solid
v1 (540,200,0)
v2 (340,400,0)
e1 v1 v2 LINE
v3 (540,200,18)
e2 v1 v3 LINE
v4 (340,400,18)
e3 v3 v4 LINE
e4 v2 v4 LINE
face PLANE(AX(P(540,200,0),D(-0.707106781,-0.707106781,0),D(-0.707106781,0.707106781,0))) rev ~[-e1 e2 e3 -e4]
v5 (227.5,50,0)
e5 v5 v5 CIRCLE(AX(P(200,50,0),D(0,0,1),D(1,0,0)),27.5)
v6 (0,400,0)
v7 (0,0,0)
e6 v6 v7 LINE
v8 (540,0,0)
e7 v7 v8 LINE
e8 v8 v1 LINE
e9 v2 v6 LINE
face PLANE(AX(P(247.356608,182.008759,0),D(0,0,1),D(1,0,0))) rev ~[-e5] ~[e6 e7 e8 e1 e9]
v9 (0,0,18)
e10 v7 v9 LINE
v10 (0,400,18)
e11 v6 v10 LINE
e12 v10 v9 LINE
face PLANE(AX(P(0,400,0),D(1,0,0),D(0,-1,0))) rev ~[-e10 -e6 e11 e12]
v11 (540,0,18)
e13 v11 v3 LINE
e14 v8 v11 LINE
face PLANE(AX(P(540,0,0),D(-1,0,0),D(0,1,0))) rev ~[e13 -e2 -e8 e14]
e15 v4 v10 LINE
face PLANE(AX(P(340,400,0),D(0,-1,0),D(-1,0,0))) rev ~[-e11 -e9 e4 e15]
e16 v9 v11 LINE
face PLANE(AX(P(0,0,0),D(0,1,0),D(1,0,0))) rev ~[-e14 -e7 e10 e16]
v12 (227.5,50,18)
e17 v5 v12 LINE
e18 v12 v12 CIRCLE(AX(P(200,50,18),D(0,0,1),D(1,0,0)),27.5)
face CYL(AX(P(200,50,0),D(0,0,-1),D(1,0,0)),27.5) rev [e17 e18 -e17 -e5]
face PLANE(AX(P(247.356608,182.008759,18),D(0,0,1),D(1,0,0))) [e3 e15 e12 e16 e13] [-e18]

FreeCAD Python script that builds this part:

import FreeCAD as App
import Part
import Sketcher
from FreeCAD import Vector


def add_polygon(sketch, points):
    """Adds a closed chain of lines whose ends are joined by coincident constraints."""
    first, n = sketch.GeometryCount, len(points)
    for a, b in zip(points, points[1:] + points[:1]):
        sketch.addGeometry(Part.LineSegment(App.Vector(*a, 0), App.Vector(*b, 0)), False)
    for i in range(n):
        sketch.addConstraint(Sketcher.Constraint("Coincident", first + i, 2, first + (i + 1) % n, 1))

doc = App.newDocument("Part")
body = doc.addObject("PartDesign::Body", "Body")

sketch1 = body.newObject("Sketcher::SketchObject", "Sketch")
sketch1.AttachmentSupport = (doc.getObject("XY_Plane"), [""])
sketch1.MapMode = "FlatFace"
add_polygon(sketch1, [(0, 400), (0, 0), (540, 0), (540, 200), (340, 400)])
sketch1.addGeometry(Part.Circle(Vector(200, 50, 0), Vector(0, 0, 1), 28), False)
sketch1.addConstraint([
    Sketcher.Constraint("Vertical", 0),
    Sketcher.Constraint("Horizontal", 1),
    Sketcher.Constraint("Vertical", 2),
    Sketcher.Constraint("Horizontal", 4),
    Sketcher.Constraint("Coincident", 0, 2, -1, 1),
    Sketcher.Constraint("Diameter", 5, 55.0),
    Sketcher.Constraint("DistanceX", 1, 1, 1, 2, 540.0),
    Sketcher.Constraint("DistanceX", 4, 2, 4, 1, 340.0),
    Sketcher.Constraint("DistanceY", 0, 2, 0, 1, 400.0),
    Sketcher.Constraint("DistanceY", 2, 1, 2, 2, 200.0),
    Sketcher.Constraint("DistanceX", -1, 1, 5, 3, 200.0),
    Sketcher.Constraint("DistanceY", -1, 1, 5, 3, 50.0),
])
pad1 = body.newObject("PartDesign::Pad", "Pad")
pad1.Profile = sketch1
pad1.Length = 18

doc.recompute()
